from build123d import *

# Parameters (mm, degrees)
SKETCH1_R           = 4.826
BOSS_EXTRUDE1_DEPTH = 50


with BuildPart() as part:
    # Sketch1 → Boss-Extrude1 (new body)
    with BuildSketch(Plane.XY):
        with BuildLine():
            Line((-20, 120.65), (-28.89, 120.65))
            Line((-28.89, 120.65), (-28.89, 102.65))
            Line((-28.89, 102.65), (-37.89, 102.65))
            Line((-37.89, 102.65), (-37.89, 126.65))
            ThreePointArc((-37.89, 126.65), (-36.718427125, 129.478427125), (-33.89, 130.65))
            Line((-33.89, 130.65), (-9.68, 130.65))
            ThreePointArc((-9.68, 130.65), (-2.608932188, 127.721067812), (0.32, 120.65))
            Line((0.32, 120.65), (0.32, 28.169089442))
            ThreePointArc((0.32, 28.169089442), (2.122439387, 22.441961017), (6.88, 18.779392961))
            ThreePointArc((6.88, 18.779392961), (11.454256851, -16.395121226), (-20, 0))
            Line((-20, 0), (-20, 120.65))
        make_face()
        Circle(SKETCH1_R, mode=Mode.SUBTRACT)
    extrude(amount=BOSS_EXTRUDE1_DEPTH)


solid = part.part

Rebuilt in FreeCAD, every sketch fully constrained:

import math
import FreeCAD as App
import Part
import Sketcher
Q = App.Units.Quantity

doc = App.newDocument("Part")
body = doc.addObject("PartDesign::Body", "Body")

# Sketch on XY plane
sketch1 = doc.addObject("Sketcher::SketchObject", "Sketch")
body.addObject(sketch1)
sketch1.AttachmentSupport = (doc.XY_Plane, [""])
sketch1.MapMode = "FlatFace"
sketch1.addGeometry(Part.LineSegment(App.Vector(-28.9, 120.7, 0), App.Vector(-20, 120.7, 0)), False)
sketch1.addGeometry(Part.LineSegment(App.Vector(-20, 120.7, 0), App.Vector(-20, 0, 0)), False)
sketch1.addGeometry(Part.ArcOfCircle(Part.Circle(App.Vector(0, 0, 0), App.Vector(0, 0, 1), 20), math.radians(180), math.radians(430)), False)
sketch1.addGeometry(Part.ArcOfCircle(Part.Circle(App.Vector(10.3, 28.2, 0), App.Vector(0, 0, 1), 10), math.radians(180), math.radians(250)), False)
sketch1.addGeometry(Part.LineSegment(App.Vector(0.3, 28.2, 0), App.Vector(0.3, 120.7, 0)), False)
sketch1.addGeometry(Part.ArcOfCircle(Part.Circle(App.Vector(-9.7, 120.7, 0), App.Vector(0, 0, 1), 10), math.radians(0), math.radians(90)), False)
sketch1.addGeometry(Part.LineSegment(App.Vector(-9.7, 130.7, 0), App.Vector(-33.9, 130.7, 0)), False)
sketch1.addGeometry(Part.ArcOfCircle(Part.Circle(App.Vector(-33.9, 126.7, 0), App.Vector(0, 0, 1), 4), math.radians(90), math.radians(180)), False)
sketch1.addGeometry(Part.LineSegment(App.Vector(-37.9, 126.7, 0), App.Vector(-37.9, 102.7, 0)), False)
sketch1.addGeometry(Part.LineSegment(App.Vector(-37.9, 102.7, 0), App.Vector(-28.9, 102.7, 0)), False)
sketch1.addGeometry(Part.LineSegment(App.Vector(-28.9, 102.7, 0), App.Vector(-28.9, 120.7, 0)), False)
sketch1.addGeometry(Part.Circle(App.Vector(0, 0, 0), App.Vector(0, 0, 1), 4.8), False)
sketch1.addConstraint(Sketcher.Constraint("Coincident", 0, 2, 1, 1))
sketch1.addConstraint(Sketcher.Constraint("Tangent", 1, 2, 2, 1))
sketch1.addConstraint(Sketcher.Constraint("Tangent", 2, 2, 3, 2))
sketch1.addConstraint(Sketcher.Constraint("Tangent", 3, 1, 4, 1))
sketch1.addConstraint(Sketcher.Constraint("Tangent", 4, 2, 5, 1))
sketch1.addConstraint(Sketcher.Constraint("Tangent", 5, 2, 6, 1))
sketch1.addConstraint(Sketcher.Constraint("Tangent", 6, 2, 7, 1))
sketch1.addConstraint(Sketcher.Constraint("Tangent", 7, 2, 8, 1))
sketch1.addConstraint(Sketcher.Constraint("Coincident", 8, 2, 9, 1))
sketch1.addConstraint(Sketcher.Constraint("Coincident", 9, 2, 10, 1))
sketch1.addConstraint(Sketcher.Constraint("Coincident", 10, 2, 0, 1))
sketch1.addConstraint(Sketcher.Constraint("Horizontal", 0))
sketch1.addConstraint(Sketcher.Constraint("Vertical", 1))
sketch1.addConstraint(Sketcher.Constraint("Vertical", 4))
sketch1.addConstraint(Sketcher.Constraint("Horizontal", 6))
sketch1.addConstraint(Sketcher.Constraint("Vertical", 8))
sketch1.addConstraint(Sketcher.Constraint("Horizontal", 9))
sketch1.addConstraint(Sketcher.Constraint("Vertical", 10))
sketch1.addConstraint(Sketcher.Constraint("Coincident", 2, 3, -1, 1))
sketch1.addConstraint(Sketcher.Constraint("Coincident", 11, 3, -1, 1))
sketch1.addConstraint(Sketcher.Constraint("Equal", 3, 5))
sketch1.addConstraint(Sketcher.Constraint("Horizontal", 5, 3, 0, 2))
sketch1.addConstraint(Sketcher.Constraint("Radius", 2, Q("20 mm")))
sketch1.addConstraint(Sketcher.Constraint("Radius", 3, Q("10 mm")))
sketch1.addConstraint(Sketcher.Constraint("Radius", 7, Q("4 mm")))
sketch1.addConstraint(Sketcher.Constraint("DistanceX", 9, 1, 9, 2, Q("9 mm")))
sketch1.addConstraint(Sketcher.Constraint("DistanceY", 8, 2, 8, 1, Q("24 mm")))
sketch1.addConstraint(Sketcher.Constraint("Diameter", 11, Q("9.652 mm")))
sketch1.addConstraint(Sketcher.Constraint("DistanceX", 0, 1, 0, 2, Q("8.89 mm")))
sketch1.addConstraint(Sketcher.Constraint("DistanceX", 6, 2, 6, 1, Q("24.21 mm")))
sketch1.addConstraint(Sketcher.Constraint("DistanceY", 1, 2, 1, 1, Q("120.65 mm")))
pad1 = doc.addObject("PartDesign::Pad", "Pad")
body.addObject(pad1)
pad1.Profile = sketch1
pad1.Length = 50

doc.recompute()
